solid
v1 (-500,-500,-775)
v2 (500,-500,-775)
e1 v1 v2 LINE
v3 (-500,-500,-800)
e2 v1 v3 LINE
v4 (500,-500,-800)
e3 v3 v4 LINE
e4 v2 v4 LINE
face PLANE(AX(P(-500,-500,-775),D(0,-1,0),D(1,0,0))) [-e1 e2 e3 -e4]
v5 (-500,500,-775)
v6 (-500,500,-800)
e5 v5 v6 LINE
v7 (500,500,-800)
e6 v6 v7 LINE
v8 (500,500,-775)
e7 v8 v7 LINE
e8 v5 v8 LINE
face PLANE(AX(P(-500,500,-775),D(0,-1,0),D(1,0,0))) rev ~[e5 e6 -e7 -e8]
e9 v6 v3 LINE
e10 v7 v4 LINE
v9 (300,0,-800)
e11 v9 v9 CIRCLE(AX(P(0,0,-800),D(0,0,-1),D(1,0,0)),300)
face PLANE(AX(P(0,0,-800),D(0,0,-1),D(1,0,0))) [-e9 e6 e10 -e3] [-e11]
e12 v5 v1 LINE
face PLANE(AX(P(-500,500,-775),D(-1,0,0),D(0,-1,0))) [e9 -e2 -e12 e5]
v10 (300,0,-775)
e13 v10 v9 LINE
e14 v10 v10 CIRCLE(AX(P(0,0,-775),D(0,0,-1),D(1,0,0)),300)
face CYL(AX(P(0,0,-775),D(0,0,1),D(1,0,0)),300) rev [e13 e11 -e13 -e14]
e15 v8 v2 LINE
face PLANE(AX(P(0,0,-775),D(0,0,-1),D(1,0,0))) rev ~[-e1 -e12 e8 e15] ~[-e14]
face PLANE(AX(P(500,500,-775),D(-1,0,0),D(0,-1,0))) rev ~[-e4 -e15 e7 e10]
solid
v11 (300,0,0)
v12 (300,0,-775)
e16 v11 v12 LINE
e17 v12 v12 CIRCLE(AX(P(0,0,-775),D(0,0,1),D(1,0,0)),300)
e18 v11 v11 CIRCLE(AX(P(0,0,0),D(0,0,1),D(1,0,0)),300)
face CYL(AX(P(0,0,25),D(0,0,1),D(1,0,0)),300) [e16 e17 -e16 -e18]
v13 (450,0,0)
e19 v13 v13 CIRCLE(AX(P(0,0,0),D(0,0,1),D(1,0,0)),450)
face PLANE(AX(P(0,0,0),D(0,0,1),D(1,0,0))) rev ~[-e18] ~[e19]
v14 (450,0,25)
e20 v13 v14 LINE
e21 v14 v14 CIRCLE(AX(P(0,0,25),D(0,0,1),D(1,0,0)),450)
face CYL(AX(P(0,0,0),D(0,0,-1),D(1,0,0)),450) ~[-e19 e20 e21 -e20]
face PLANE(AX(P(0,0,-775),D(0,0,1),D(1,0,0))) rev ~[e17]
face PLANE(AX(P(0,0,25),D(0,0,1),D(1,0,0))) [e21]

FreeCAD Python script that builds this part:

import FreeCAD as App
import Part
import Sketcher
from FreeCAD import Vector
Q = App.Units.Quantity


def add_polygon(sketch, points):
    """Adds a closed chain of lines whose ends are joined by coincident constraints."""
    first, n = sketch.GeometryCount, len(points)
    for a, b in zip(points, points[1:] + points[:1]):
        sketch.addGeometry(Part.LineSegment(App.Vector(*a, 0), App.Vector(*b, 0)), False)
    for i in range(n):
        sketch.addConstraint(Sketcher.Constraint("Coincident", first + i, 2, first + (i + 1) % n, 1))

doc = App.newDocument("Part")
params = doc.addObject("Spreadsheet::Sheet", "Params")
for row, (alias, value) in enumerate([
    ("sketch1_diameter", "900 mm"),
    ("pad1_length", "25 mm"),
    ("sketch2_diameter", "600 mm"),
    ("pad2_length", "800 mm"),
    ("sketch3_diameter", "600 mm"),
    ("sketch3_width", "1000 mm"),
    ("pad3_length", "25 mm"),
], start=1):
    params.set(f"A{row}", alias)
    params.set(f"B{row}", "=" + value)
    params.setAlias(f"B{row}", alias)

body = doc.addObject("PartDesign::Body", "Body")

# Sketch on XY plane
sketch1 = body.newObject("Sketcher::SketchObject", "Sketch")
sketch1.AttachmentSupport = (doc.getObject("XY_Plane"), [""])
sketch1.MapMode = "FlatFace"
sketch1.addGeometry(Part.Circle(Vector(0, 0, 0), Vector(0, 0, 1), 450), False)
sketch1.addConstraint([
    Sketcher.Constraint("Coincident", 0, 3, -1, 1),
    Sketcher.Constraint("Diameter", 0, Q("900 mm")),
])
sketch1.setExpression("Constraints[1]", "Params.sketch1_diameter")
pad1 = body.newObject("PartDesign::Pad", "Pad")
pad1.Profile = sketch1
pad1.setExpression("Length", "Params.pad1_length")

# Sketch on XY plane
sketch2 = body.newObject("Sketcher::SketchObject", "Sketch001")
sketch2.AttachmentSupport = (doc.getObject("XY_Plane"), [""])
sketch2.MapMode = "FlatFace"
sketch2.AttachmentOffset = App.Placement(Vector(0, 0, 25), App.Rotation())
sketch2.addGeometry(Part.Circle(Vector(0, 0, 0), Vector(0, 0, 1), 300), False)
sketch2.addConstraint([
    Sketcher.Constraint("Coincident", 0, 3, -1, 1),
    Sketcher.Constraint("Diameter", 0, Q("600 mm")),
])
sketch2.setExpression("Constraints[1]", "Params.sketch2_diameter")
pad2 = body.newObject("PartDesign::Pad", "Pad001")
pad2.Profile = sketch2
pad2.setExpression("Length", "Params.pad2_length")
pad2.Reversed = True
body2 = doc.addObject("PartDesign::Body", "Body001")

# Sketch on XY plane
sketch3 = body2.newObject("Sketcher::SketchObject", "Sketch002")
sketch3.AttachmentSupport = (doc.getObject("XY_Plane001"), [""])
sketch3.MapMode = "FlatFace"
sketch3.AttachmentOffset = App.Placement(Vector(0, 0, -775), App.Rotation())
add_polygon(sketch3, [(-500, -500), (-500, 500), (500, 500), (500, -500)])  # lines 0-3
sketch3.addGeometry(Part.Circle(Vector(0, 0, 0), Vector(0, 0, 1), 300), False)  # 4
sketch3.addConstraint([
    Sketcher.Constraint("Vertical", 0),
    Sketcher.Constraint("Horizontal", 1),
    Sketcher.Constraint("Vertical", 2),
    Sketcher.Constraint("Horizontal", 3),
    Sketcher.Constraint("Coincident", 4, 3, -1, 1),
    Sketcher.Constraint("Symmetric", 0, 2, 2, 2, -1, 1),
    Sketcher.Constraint("Equal", 3, 0),
    Sketcher.Constraint("Diameter", 4, Q("600 mm")),
    Sketcher.Constraint("DistanceX", 1, 1, 1, 2, Q("1000 mm")),
])
sketch3.setExpression("Constraints[11]", "Params.sketch3_diameter")
sketch3.setExpression("Constraints[12]", "Params.sketch3_width")
pad3 = body2.newObject("PartDesign::Pad", "Pad002")
pad3.Profile = sketch3
pad3.setExpression("Length", "Params.pad3_length")
pad3.Reversed = True

doc.recompute()
